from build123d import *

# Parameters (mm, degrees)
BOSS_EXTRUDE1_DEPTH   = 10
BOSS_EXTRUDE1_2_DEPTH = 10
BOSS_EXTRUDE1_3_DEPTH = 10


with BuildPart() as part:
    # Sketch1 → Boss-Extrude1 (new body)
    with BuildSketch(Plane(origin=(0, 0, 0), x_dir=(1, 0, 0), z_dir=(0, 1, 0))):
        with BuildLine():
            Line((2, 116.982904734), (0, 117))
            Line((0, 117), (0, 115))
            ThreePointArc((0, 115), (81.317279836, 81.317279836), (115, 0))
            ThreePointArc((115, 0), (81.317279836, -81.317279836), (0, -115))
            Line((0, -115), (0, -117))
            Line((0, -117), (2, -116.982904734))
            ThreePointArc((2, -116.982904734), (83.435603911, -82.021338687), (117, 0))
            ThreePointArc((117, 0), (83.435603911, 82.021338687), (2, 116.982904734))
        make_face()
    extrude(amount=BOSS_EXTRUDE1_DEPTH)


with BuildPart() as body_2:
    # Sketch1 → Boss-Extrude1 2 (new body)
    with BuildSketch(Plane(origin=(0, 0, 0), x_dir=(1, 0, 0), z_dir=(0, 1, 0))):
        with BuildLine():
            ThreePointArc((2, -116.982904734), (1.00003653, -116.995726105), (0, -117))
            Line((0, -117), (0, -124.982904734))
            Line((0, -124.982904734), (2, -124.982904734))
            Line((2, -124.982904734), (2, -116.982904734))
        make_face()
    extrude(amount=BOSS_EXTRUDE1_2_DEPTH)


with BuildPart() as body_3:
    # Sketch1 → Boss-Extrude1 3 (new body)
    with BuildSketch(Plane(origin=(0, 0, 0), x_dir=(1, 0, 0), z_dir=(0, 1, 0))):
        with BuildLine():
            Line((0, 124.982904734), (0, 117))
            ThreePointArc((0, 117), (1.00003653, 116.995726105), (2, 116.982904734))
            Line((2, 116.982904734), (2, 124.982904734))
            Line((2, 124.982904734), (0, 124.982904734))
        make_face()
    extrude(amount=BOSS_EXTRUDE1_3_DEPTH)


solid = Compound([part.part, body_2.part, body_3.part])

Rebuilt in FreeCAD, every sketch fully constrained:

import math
import FreeCAD as App
import Part
import Sketcher

doc = App.newDocument("Part")
body = doc.addObject("PartDesign::Body", "Body")

# Sketch on XZ plane
sketch1 = body.newObject("Sketcher::SketchObject", "Sketch")
sketch1.AttachmentSupport = (doc.getObject("XZ_Plane"), [""])
sketch1.MapMode = "FlatFace"
sketch1.addGeometry([
    Part.LineSegment(App.Vector(2, -117, 0), App.Vector(0, -117, 0)),  # 0
    Part.LineSegment(App.Vector(0, -117, 0), App.Vector(0, -115, 0)),  # 1
    Part.ArcOfCircle(Part.Circle(App.Vector(0, 0, 0), App.Vector(0, 0, 1), 115), math.radians(-90), math.radians(0)),  # 2
    Part.ArcOfCircle(Part.Circle(App.Vector(0, 0, 0), App.Vector(0, 0, 1), 115), math.radians(0), math.radians(90)),  # 3
    Part.LineSegment(App.Vector(0, 115, 0), App.Vector(0, 117, 0)),  # 4
    Part.LineSegment(App.Vector(0, 117, 0), App.Vector(2, 117, 0)),  # 5
    Part.ArcOfCircle(Part.Circle(App.Vector(0, 0, 0), App.Vector(0, 0, 1), 117), math.radians(-89), math.radians(89)),  # 6
], False)
sketch1.addConstraint([
    Sketcher.Constraint("Coincident", 0, 2, 1, 1),
    Sketcher.Constraint("Coincident", 1, 2, 2, 1),
    Sketcher.Constraint("Tangent", 2, 2, 3, 1),
    Sketcher.Constraint("Coincident", 3, 2, 4, 1),
    Sketcher.Constraint("Coincident", 4, 2, 5, 1),
    Sketcher.Constraint("Coincident", 5, 2, 6, 2),
    Sketcher.Constraint("Coincident", 6, 1, 0, 1),
    Sketcher.Constraint("Vertical", 1),
    Sketcher.Constraint("Vertical", 4),
    Sketcher.Constraint("Coincident", 2, 3, -1, 1),
    Sketcher.Constraint("Coincident", 6, 3, -1, 1),
    Sketcher.Constraint("Equal", 2, 3),
    Sketcher.Constraint("Symmetric", 0, 2, 4, 2, -1, 1),
    Sketcher.Constraint("PointOnObject", 0, 2, -2),
    Sketcher.Constraint("PointOnObject", 2, 2, -1),
    Sketcher.Constraint("Vertical", 5, 2, 6, 1),
    Sketcher.Constraint("Radius", 2, 115.0),
    Sketcher.Constraint("Radius", 6, 117.0),
    Sketcher.Constraint("DistanceY", 1, 1, 1, 2, 2.0),
    Sketcher.Constraint("DistanceX", -1, 1, 5, 2, 2.0),
])
pad1 = body.newObject("PartDesign::Pad", "Pad")
pad1.Profile = sketch1
pad1.Length = 10
pad1.Reversed = True
body2 = doc.addObject("PartDesign::Body", "Body001")

# Sketch on XZ plane
sketch2 = body2.newObject("Sketcher::SketchObject", "Sketch001")
sketch2.AttachmentSupport = (doc.getObject("XZ_Plane001"), [""])
sketch2.MapMode = "FlatFace"
sketch2.addGeometry([
    Part.ArcOfCircle(Part.Circle(App.Vector(0, 0, 0), App.Vector(0, 0, 1), 117), math.radians(89.02), math.radians(90)),
    Part.LineSegment(App.Vector(0, 117, 0), App.Vector(0, 125, 0)),
    Part.LineSegment(App.Vector(0, 125, 0), App.Vector(2, 125, 0)),
    Part.LineSegment(App.Vector(2, 125, 0), App.Vector(2, 117, 0)),
], False)
sketch2.addConstraint([
    Sketcher.Constraint("Coincident", 0, 2, 1, 1),
    Sketcher.Constraint("Coincident", 1, 2, 2, 1),
    Sketcher.Constraint("Coincident", 2, 2, 3, 1),
    Sketcher.Constraint("Coincident", 3, 2, 0, 1),
    Sketcher.Constraint("Vertical", 1),
    Sketcher.Constraint("Horizontal", 2),
    Sketcher.Constraint("Vertical", 3),
    Sketcher.Constraint("PointOnObject", 0, 3, -2),
    Sketcher.Constraint("PointOnObject", 0, 2, -2),
    Sketcher.Constraint("DistanceX", 2, 1, 2, 2, 2.0),
    Sketcher.Constraint("DistanceY", 3, 2, 3, 1, 8.0),
    Sketcher.Constraint("DistanceY", -1, 1, 0, 2, 117.0),
    Sketcher.Constraint("Radius", 0, 117.000012),
])
pad2 = body2.newObject("PartDesign::Pad", "Pad001")
pad2.Profile = sketch2
pad2.Length = 10
pad2.Reversed = True
body3 = doc.addObject("PartDesign::Body", "Body002")

# Sketch on XZ plane
sketch3 = body3.newObject("Sketcher::SketchObject", "Sketch002")
sketch3.AttachmentSupport = (doc.getObject("XZ_Plane002"), [""])
sketch3.MapMode = "FlatFace"
sketch3.addGeometry([
    Part.LineSegment(App.Vector(0, -125, 0), App.Vector(0, -117, 0)),
    Part.ArcOfCircle(Part.Circle(App.Vector(0, 0, 0), App.Vector(0, 0, 1), 117), math.radians(-90), math.radians(-89.02)),
    Part.LineSegment(App.Vector(2, -117, 0), App.Vector(2, -125, 0)),
    Part.LineSegment(App.Vector(2, -125, 0), App.Vector(0, -125, 0)),
], False)
sketch3.addConstraint([
    Sketcher.Constraint("Coincident", 0, 2, 1, 1),
    Sketcher.Constraint("Coincident", 1, 2, 2, 1),
    Sketcher.Constraint("Coincident", 2, 2, 3, 1),
    Sketcher.Constraint("Coincident", 3, 2, 0, 1),
    Sketcher.Constraint("Vertical", 0),
    Sketcher.Constraint("Vertical", 2),
    Sketcher.Constraint("Horizontal", 3),
    Sketcher.Constraint("PointOnObject", 1, 3, -2),
    Sketcher.Constraint("PointOnObject", 0, 2, -2),
    Sketcher.Constraint("DistanceX", 3, 2, 3, 1, 2.0),
    Sketcher.Constraint("DistanceY", 2, 2, 2, 1, 8.0),
    Sketcher.Constraint("DistanceY", 0, 2, -1, 1, 117.0),
    Sketcher.Constraint("Radius", 1, 117.000012),
])
pad3 = body3.newObject("PartDesign::Pad", "Pad002")
pad3.Profile = sketch3
pad3.Length = 10
pad3.Reversed = True

doc.recompute()
